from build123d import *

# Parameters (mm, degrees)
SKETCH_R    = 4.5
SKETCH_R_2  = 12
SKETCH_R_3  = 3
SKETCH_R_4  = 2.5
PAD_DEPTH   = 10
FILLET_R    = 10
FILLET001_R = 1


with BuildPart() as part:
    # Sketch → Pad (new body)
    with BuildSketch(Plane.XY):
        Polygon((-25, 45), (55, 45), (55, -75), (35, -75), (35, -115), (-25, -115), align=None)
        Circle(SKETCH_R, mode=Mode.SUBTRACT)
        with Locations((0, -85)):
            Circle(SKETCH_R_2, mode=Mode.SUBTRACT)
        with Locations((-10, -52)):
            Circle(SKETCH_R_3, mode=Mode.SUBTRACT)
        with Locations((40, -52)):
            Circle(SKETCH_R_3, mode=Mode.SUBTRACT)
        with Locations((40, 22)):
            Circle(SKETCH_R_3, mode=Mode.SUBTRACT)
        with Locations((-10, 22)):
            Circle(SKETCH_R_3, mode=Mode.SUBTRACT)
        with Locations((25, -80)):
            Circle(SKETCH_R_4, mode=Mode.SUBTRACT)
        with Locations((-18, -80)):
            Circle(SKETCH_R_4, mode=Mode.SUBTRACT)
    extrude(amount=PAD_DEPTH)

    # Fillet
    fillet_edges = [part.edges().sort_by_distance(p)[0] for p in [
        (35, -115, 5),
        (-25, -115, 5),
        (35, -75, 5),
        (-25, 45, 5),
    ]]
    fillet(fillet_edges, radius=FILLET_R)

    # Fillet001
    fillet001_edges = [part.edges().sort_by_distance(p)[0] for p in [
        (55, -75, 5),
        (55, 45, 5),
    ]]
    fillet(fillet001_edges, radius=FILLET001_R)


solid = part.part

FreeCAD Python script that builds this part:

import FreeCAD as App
import Part
import Sketcher


def edges_at(feature, points):
    """Names of the edges that pass closest to the given points."""
    edges = feature.Shape.Edges
    near = lambda p: min(range(len(edges)), key=lambda i: edges[i].distToShape(Part.Vertex(*p))[0])
    return sorted({f"Edge{near(p) + 1}" for p in points})

doc = App.newDocument("Part")
body = doc.addObject("PartDesign::Body", "Body")

sketch1 = body.newObject("Sketcher::SketchObject", "Sketch")
sketch1.AttachmentSupport = (doc.getObject("XY_Plane"), [""])
sketch1.MapMode = "FlatFace"
sketch1.addGeometry([
    Part.LineSegment(App.Vector(55, 45, 0), App.Vector(-25, 45, 0)),
    Part.LineSegment(App.Vector(-25, 45, 0), App.Vector(-25, -115, 0)),
    Part.LineSegment(App.Vector(-25, -115, 0), App.Vector(35, -115, 0)),
    Part.LineSegment(App.Vector(35, -115, 0), App.Vector(35, -75, 0)),
    Part.LineSegment(App.Vector(35, -75, 0), App.Vector(55, -75, 0)),
    Part.LineSegment(App.Vector(55, -75, 0), App.Vector(55, 45, 0)),
    Part.Circle(App.Vector(25, -80, 0), App.Vector(0, 0, 1), 2.5),
    Part.Circle(App.Vector(40, -52, 0), App.Vector(0, 0, 1), 3),
    Part.Circle(App.Vector(0, -85, 0), App.Vector(0, 0, 1), 12),
    Part.Circle(App.Vector(-18, -80, 0), App.Vector(0, 0, 1), 2.5),
    Part.Circle(App.Vector(-10, -52, 0), App.Vector(0, 0, 1), 3),
    Part.Circle(App.Vector(40, 22, 0), App.Vector(0, 0, 1), 3),
    Part.Circle(App.Vector(0, 0, 0), App.Vector(0, 0, 1), 4.5),
    Part.Circle(App.Vector(-10, 22, 0), App.Vector(0, 0, 1), 3),
], False)
sketch1.addConstraint([
    Sketcher.Constraint("Coincident", 0, 2, 1, 1),
    Sketcher.Constraint("Coincident", 1, 2, 2, 1),
    Sketcher.Constraint("Coincident", 2, 2, 3, 1),
    Sketcher.Constraint("Coincident", 3, 2, 4, 1),
    Sketcher.Constraint("Coincident", 4, 2, 5, 1),
    Sketcher.Constraint("Coincident", 5, 2, 0, 1),
    Sketcher.Constraint("Horizontal", 0),
    Sketcher.Constraint("Vertical", 1),
    Sketcher.Constraint("Horizontal", 2),
    Sketcher.Constraint("Vertical", 3),
    Sketcher.Constraint("Horizontal", 4),
    Sketcher.Constraint("Vertical", 5),
    Sketcher.Constraint("Coincident", 12, 3, -1, 1),
    Sketcher.Constraint("Equal", 6, 9),
    Sketcher.Constraint("Equal", 7, 10),
    Sketcher.Constraint("Equal", 10, 11),
    Sketcher.Constraint("Equal", 11, 13),
    Sketcher.Constraint("PointOnObject", 8, 3, -2),
    Sketcher.Constraint("Horizontal", 6, 3, 9, 3),
    Sketcher.Constraint("Horizontal", 7, 3, 10, 3),
    Sketcher.Constraint("Horizontal", 11, 3, 13, 3),
    Sketcher.Constraint("Vertical", 7, 3, 11, 3),
    Sketcher.Constraint("Vertical", 10, 3, 13, 3),
    Sketcher.Constraint("Diameter", 6, 5.0),
    Sketcher.Constraint("Diameter", 7, 6.0),
    Sketcher.Constraint("Diameter", 8, 24.0),
    Sketcher.Constraint("Diameter", 12, 9.0),
    Sketcher.Constraint("DistanceX", 0, 2, 0, 1, 80.0),
    Sketcher.Constraint("DistanceX", 2, 1, 2, 2, 60.0),
    Sketcher.Constraint("DistanceY", 1, 2, 1, 1, 160.0),
    Sketcher.Constraint("DistanceY", 3, 1, 3, 2, 40.0),
    Sketcher.Constraint("DistanceX", -1, 1, 6, 3, 25.0),
    Sketcher.Constraint("DistanceY", 6, 3, -1, 1, 80.0),
    Sketcher.Constraint("DistanceX", -1, 1, 7, 3, 40.0),
    Sketcher.Constraint("DistanceY", 7, 3, -1, 1, 52.0),
    Sketcher.Constraint("DistanceY", 8, 3, -1, 1, 85.0),
    Sketcher.Constraint("DistanceX", 9, 3, -1, 1, 18.0),
    Sketcher.Constraint("DistanceX", 10, 3, -1, 1, 10.0),
    Sketcher.Constraint("DistanceY", -1, 1, 11, 3, 22.0),
    Sketcher.Constraint("DistanceX", 0, 2, -1, 1, 25.0),
    Sketcher.Constraint("DistanceY", -1, 1, 0, 2, 45.0),
])
pad1 = body.newObject("PartDesign::Pad", "Pad")
pad1.Profile = sketch1
pad1.Length = 10
doc.recompute()

fillet = body.newObject("PartDesign::Fillet", "Fillet")
fillet.Base = (pad1, edges_at(pad1, [
    (35, -115, 5),
    (-25, -115, 5),
    (35, -75, 5),
    (-25, 45, 5),
]))
fillet.Radius = 10
doc.recompute()

fillet2 = body.newObject("PartDesign::Fillet", "Fillet001")
fillet2.Base = (fillet, edges_at(fillet, [(55, -75, 5), (55, 45, 5)]))
fillet2.Radius = 1

doc.recompute()
